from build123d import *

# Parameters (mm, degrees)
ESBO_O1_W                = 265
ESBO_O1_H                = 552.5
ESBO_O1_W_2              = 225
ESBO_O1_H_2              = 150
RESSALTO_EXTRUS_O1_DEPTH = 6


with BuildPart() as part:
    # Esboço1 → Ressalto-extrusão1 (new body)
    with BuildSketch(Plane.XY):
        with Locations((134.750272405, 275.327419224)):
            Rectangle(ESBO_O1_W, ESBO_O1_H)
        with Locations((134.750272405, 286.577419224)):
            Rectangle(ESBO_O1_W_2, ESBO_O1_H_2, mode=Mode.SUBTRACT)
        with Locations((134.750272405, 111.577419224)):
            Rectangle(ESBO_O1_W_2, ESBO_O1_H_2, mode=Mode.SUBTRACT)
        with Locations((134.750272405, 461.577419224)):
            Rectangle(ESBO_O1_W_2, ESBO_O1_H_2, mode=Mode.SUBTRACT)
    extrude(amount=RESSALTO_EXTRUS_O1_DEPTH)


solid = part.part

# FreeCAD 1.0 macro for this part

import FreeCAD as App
import Part
import Sketcher
from FreeCAD import Vector
Q = App.Units.Quantity

doc = App.newDocument("Part")
params = doc.addObject("Spreadsheet::Sheet", "Params")
for row, (alias, value) in enumerate([
    ("sketch1_width", "265 mm"),
    ("sketch1_width2", "225 mm"),
    ("sketch1_height", "150 mm"),
    ("sketch1_height2", "552.5 mm"),
    ("pad1_length", "6 mm"),
], start=1):
    params.set(f"A{row}", alias)
    params.set(f"B{row}", "=" + value)
    params.setAlias(f"B{row}", alias)

body = doc.addObject("PartDesign::Body", "Body")

# Sketch on XY plane
sketch1 = doc.addObject("Sketcher::SketchObject", "Sketch")
body.addObject(sketch1)
sketch1.AttachmentSupport = (doc.XY_Plane, [""])
sketch1.MapMode = "FlatFace"
sketch1.addGeometry([
    Part.LineSegment(Vector(2, 552, 0), Vector(2, -1, 0)),  # 0
    Part.LineSegment(Vector(2, -1, 0), Vector(267, -1, 0)),  # 1
    Part.LineSegment(Vector(267, -1, 0), Vector(267, 552, 0)),  # 2
    Part.LineSegment(Vector(267, 552, 0), Vector(2, 552, 0)),  # 3
    Part.LineSegment(Vector(247, 37, 0), Vector(22, 37, 0)),  # 4
    Part.LineSegment(Vector(22, 37, 0), Vector(22, 187, 0)),  # 5
    Part.LineSegment(Vector(22, 187, 0), Vector(247, 187, 0)),  # 6
    Part.LineSegment(Vector(247, 187, 0), Vector(247, 37, 0)),  # 7
    Part.LineSegment(Vector(247, 212, 0), Vector(22, 212, 0)),  # 8
    Part.LineSegment(Vector(22, 212, 0), Vector(22, 362, 0)),  # 9
    Part.LineSegment(Vector(22, 362, 0), Vector(247, 362, 0)),  # 10
    Part.LineSegment(Vector(247, 362, 0), Vector(247, 212, 0)),  # 11
    Part.LineSegment(Vector(247, 387, 0), Vector(22, 387, 0)),  # 12
    Part.LineSegment(Vector(22, 387, 0), Vector(22, 537, 0)),  # 13
    Part.LineSegment(Vector(22, 537, 0), Vector(247, 537, 0)),  # 14
    Part.LineSegment(Vector(247, 537, 0), Vector(247, 387, 0)),  # 15
], False)
sketch1.addConstraint([
    Sketcher.Constraint("Coincident", 0, 2, 1, 1),
    Sketcher.Constraint("Coincident", 1, 2, 2, 1),
    Sketcher.Constraint("Coincident", 2, 2, 3, 1),
    Sketcher.Constraint("Coincident", 3, 2, 0, 1),
    Sketcher.Constraint("Coincident", 4, 2, 5, 1),
    Sketcher.Constraint("Coincident", 5, 2, 6, 1),
    Sketcher.Constraint("Coincident", 6, 2, 7, 1),
    Sketcher.Constraint("Coincident", 7, 2, 4, 1),
    Sketcher.Constraint("Coincident", 8, 2, 9, 1),
    Sketcher.Constraint("Coincident", 9, 2, 10, 1),
    Sketcher.Constraint("Coincident", 10, 2, 11, 1),
    Sketcher.Constraint("Coincident", 11, 2, 8, 1),
    Sketcher.Constraint("Coincident", 12, 2, 13, 1),
    Sketcher.Constraint("Coincident", 13, 2, 14, 1),
    Sketcher.Constraint("Coincident", 14, 2, 15, 1),
    Sketcher.Constraint("Coincident", 15, 2, 12, 1),
    Sketcher.Constraint("Vertical", 0),
    Sketcher.Constraint("Horizontal", 1),
    Sketcher.Constraint("Vertical", 2),
    Sketcher.Constraint("Horizontal", 3),
    Sketcher.Constraint("Horizontal", 4),
    Sketcher.Constraint("Vertical", 5),
    Sketcher.Constraint("Horizontal", 6),
    Sketcher.Constraint("Vertical", 7),
    Sketcher.Constraint("Horizontal", 8),
    Sketcher.Constraint("Vertical", 9),
    Sketcher.Constraint("Horizontal", 10),
    Sketcher.Constraint("Vertical", 11),
    Sketcher.Constraint("Horizontal", 12),
    Sketcher.Constraint("Vertical", 13),
    Sketcher.Constraint("Horizontal", 14),
    Sketcher.Constraint("Vertical", 15),
    Sketcher.Constraint("Vertical", 5, 2, 8, 2),
    Sketcher.Constraint("Vertical", 7, 2, 10, 2),
    Sketcher.Constraint("Vertical", 9, 2, 12, 2),
    Sketcher.Constraint("Vertical", 11, 2, 14, 2),
    Sketcher.Constraint("Equal", 7, 9),
    Sketcher.Constraint("Equal", 11, 13),
    Sketcher.Constraint("DistanceX", 1, 1, 1, 2, Q("265 mm")),
    Sketcher.Constraint("DistanceX", 4, 2, 4, 1, Q("225 mm")),
    Sketcher.Constraint("DistanceY", 5, 1, 5, 2, Q("150 mm")),
    Sketcher.Constraint("DistanceY", 0, 2, 0, 1, Q("552.5 mm")),
    Sketcher.Constraint("DistanceX", 0, 2, 4, 2, Q("20 mm")),
    Sketcher.Constraint("DistanceY", 4, 2, 3, 2, Q("515 mm")),
    Sketcher.Constraint("DistanceY", 5, 2, 8, 2, Q("25 mm")),
    Sketcher.Constraint("DistanceY", 9, 2, 12, 2, Q("25 mm")),
    Sketcher.Constraint("DistanceY", 0, 2, -1, 1, Q("0.922581 mm")),
    Sketcher.Constraint("DistanceX", -1, 1, 0, 2, Q("2.250272 mm")),
])
sketch1.setExpression("Constraints[38]", "Params.sketch1_width")
sketch1.setExpression("Constraints[39]", "Params.sketch1_width2")
sketch1.setExpression("Constraints[40]", "Params.sketch1_height")
sketch1.setExpression("Constraints[41]", "Params.sketch1_height2")
pad1 = doc.addObject("PartDesign::Pad", "Pad")
body.addObject(pad1)
pad1.Profile = sketch1
pad1.setExpression("Length", "Params.pad1_length")

doc.recompute()
